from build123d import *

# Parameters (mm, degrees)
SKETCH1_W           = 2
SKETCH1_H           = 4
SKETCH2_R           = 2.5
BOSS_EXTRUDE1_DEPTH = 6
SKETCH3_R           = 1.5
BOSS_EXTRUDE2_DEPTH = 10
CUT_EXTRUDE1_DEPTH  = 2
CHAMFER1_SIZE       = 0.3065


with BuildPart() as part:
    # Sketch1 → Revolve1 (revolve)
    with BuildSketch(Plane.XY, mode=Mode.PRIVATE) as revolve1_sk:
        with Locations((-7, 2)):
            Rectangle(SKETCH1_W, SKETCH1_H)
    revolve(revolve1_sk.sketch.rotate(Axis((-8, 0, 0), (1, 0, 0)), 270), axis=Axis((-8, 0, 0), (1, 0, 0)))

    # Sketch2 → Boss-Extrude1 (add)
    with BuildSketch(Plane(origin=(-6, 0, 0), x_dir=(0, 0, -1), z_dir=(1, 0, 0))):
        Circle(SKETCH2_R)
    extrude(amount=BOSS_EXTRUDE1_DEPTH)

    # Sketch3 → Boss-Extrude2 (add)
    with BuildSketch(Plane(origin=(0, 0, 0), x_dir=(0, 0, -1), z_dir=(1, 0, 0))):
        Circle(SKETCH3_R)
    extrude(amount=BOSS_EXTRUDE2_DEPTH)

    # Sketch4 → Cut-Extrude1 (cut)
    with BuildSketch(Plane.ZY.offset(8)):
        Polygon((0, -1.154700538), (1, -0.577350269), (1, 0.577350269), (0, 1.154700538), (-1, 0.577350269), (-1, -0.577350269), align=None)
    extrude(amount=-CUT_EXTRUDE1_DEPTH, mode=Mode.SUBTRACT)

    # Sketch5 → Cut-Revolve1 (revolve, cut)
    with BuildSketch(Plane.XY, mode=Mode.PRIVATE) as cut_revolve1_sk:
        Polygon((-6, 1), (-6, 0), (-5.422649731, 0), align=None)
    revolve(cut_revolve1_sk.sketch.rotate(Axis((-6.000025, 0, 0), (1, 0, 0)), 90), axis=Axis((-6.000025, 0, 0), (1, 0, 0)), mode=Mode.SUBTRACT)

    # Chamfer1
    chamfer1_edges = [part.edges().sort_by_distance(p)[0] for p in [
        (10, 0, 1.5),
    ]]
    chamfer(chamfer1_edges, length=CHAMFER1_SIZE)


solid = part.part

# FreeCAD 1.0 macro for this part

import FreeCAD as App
import Part
import Sketcher
from FreeCAD import Vector
Q = App.Units.Quantity


def edges_at(feature, points):
    """Names of the edges that pass closest to the given points."""
    edges = feature.Shape.Edges
    near = lambda p: min(range(len(edges)), key=lambda i: edges[i].distToShape(Part.Vertex(*p))[0])
    return sorted({f"Edge{near(p) + 1}" for p in points})

doc = App.newDocument("Part")
params = doc.addObject("Spreadsheet::Sheet", "Params")
for row, (alias, value) in enumerate([
    ("sketch1_width", "2 mm"),
    ("sketch1_height", "4 mm"),
    ("revolution_angle", "360 deg"),
    ("sketch2_diameter", "5 mm"),
    ("pad1_length", "6 mm"),
    ("sketch3_diameter", "3 mm"),
    ("pad2_length", "10 mm"),
    ("pocket1_length", "2 mm"),
    ("sketch5_height", "1 mm"),
    ("groove_angle", "360 deg"),
    ("chamfer_size", "0.3065 mm"),
], start=1):
    params.set(f"A{row}", alias)
    params.set(f"B{row}", "=" + value)
    params.setAlias(f"B{row}", alias)

body = doc.addObject("PartDesign::Body", "Body")

# Sketch on XY plane
sketch1 = body.newObject("Sketcher::SketchObject", "Sketch")
sketch1.AttachmentSupport = (doc.getObject("XY_Plane"), [""])
sketch1.MapMode = "FlatFace"
sketch1.addGeometry(Part.LineSegment(Vector(-8, 4, 0), Vector(-8, 0, 0)), False)
sketch1.addGeometry(Part.LineSegment(Vector(-8, 0, 0), Vector(-6, 0, 0)), False)
sketch1.addGeometry(Part.LineSegment(Vector(-6, 0, 0), Vector(-6, 4, 0)), False)
sketch1.addGeometry(Part.LineSegment(Vector(-6, 4, 0), Vector(-8, 4, 0)), False)
sketch1.addConstraint(Sketcher.Constraint("Coincident", 0, 2, 1, 1))
sketch1.addConstraint(Sketcher.Constraint("Coincident", 1, 2, 2, 1))
sketch1.addConstraint(Sketcher.Constraint("Coincident", 2, 2, 3, 1))
sketch1.addConstraint(Sketcher.Constraint("Coincident", 3, 2, 0, 1))
sketch1.addConstraint(Sketcher.Constraint("Vertical", 0))
sketch1.addConstraint(Sketcher.Constraint("Horizontal", 1))
sketch1.addConstraint(Sketcher.Constraint("Vertical", 2))
sketch1.addConstraint(Sketcher.Constraint("Horizontal", 3))
sketch1.addConstraint(Sketcher.Constraint("PointOnObject", 0, 2, -1))
sketch1.addConstraint(Sketcher.Constraint("DistanceX", 1, 1, 1, 2, Q("2 mm")))
sketch1.addConstraint(Sketcher.Constraint("DistanceY", 0, 2, 0, 1, Q("4 mm")))
sketch1.addConstraint(Sketcher.Constraint("DistanceX", 0, 2, -1, 1, Q("8 mm")))
sketch1.setExpression("Constraints[9]", "Params.sketch1_width")
sketch1.setExpression("Constraints[10]", "Params.sketch1_height")
revolution = body.newObject("PartDesign::Revolution", "Revolution")
revolution.Profile = sketch1
revolution.ReferenceAxis = (sketch1, ["H_Axis"])
revolution.setExpression("Angle", "Params.revolution_angle")

# Sketch on YZ plane
sketch2 = body.newObject("Sketcher::SketchObject", "Sketch001")
sketch2.AttachmentSupport = (doc.getObject("YZ_Plane"), [""])
sketch2.MapMode = "FlatFace"
sketch2.AttachmentOffset = App.Placement(Vector(0, 0, -6), App.Rotation())
sketch2.addGeometry(Part.Circle(Vector(0, 0, 0), Vector(0, 0, 1), 2.5), False)
sketch2.addConstraint(Sketcher.Constraint("Coincident", 0, 3, -1, 1))
sketch2.addConstraint(Sketcher.Constraint("Diameter", 0, Q("5 mm")))
sketch2.setExpression("Constraints[1]", "Params.sketch2_diameter")
pad1 = body.newObject("PartDesign::Pad", "Pad")
pad1.Profile = sketch2
pad1.setExpression("Length", "Params.pad1_length")

# Sketch on YZ plane
sketch3 = body.newObject("Sketcher::SketchObject", "Sketch002")
sketch3.AttachmentSupport = (doc.getObject("YZ_Plane"), [""])
sketch3.MapMode = "FlatFace"
sketch3.addGeometry(Part.Circle(Vector(0, 0, 0), Vector(0, 0, 1), 1.5), False)
sketch3.addConstraint(Sketcher.Constraint("Coincident", 0, 3, -1, 1))
sketch3.addConstraint(Sketcher.Constraint("Diameter", 0, Q("3 mm")))
sketch3.setExpression("Constraints[1]", "Params.sketch3_diameter")
pad2 = body.newObject("PartDesign::Pad", "Pad001")
pad2.Profile = sketch3
pad2.setExpression("Length", "Params.pad2_length")

# Sketch on YZ plane
sketch4 = body.newObject("Sketcher::SketchObject", "Sketch003")
sketch4.AttachmentSupport = (doc.getObject("YZ_Plane"), [""])
sketch4.MapMode = "FlatFace"
sketch4.AttachmentOffset = App.Placement(Vector(0, 0, -8), App.Rotation())
sketch4.addGeometry(Part.LineSegment(Vector(-1.2, 0, 0), Vector(-0.6, 1, 0)), False)
sketch4.addGeometry(Part.LineSegment(Vector(-0.6, 1, 0), Vector(0.6, 1, 0)), False)
sketch4.addGeometry(Part.LineSegment(Vector(0.6, 1, 0), Vector(1.2, 0, 0)), False)
sketch4.addGeometry(Part.LineSegment(Vector(1.2, 0, 0), Vector(0.6, -1, 0)), False)
sketch4.addGeometry(Part.LineSegment(Vector(0.6, -1, 0), Vector(-0.6, -1, 0)), False)
sketch4.addGeometry(Part.LineSegment(Vector(-0.6, -1, 0), Vector(-1.2, 0, 0)), False)
sketch4.addConstraint(Sketcher.Constraint("Coincident", 0, 2, 1, 1))
sketch4.addConstraint(Sketcher.Constraint("Coincident", 1, 2, 2, 1))
sketch4.addConstraint(Sketcher.Constraint("Coincident", 2, 2, 3, 1))
sketch4.addConstraint(Sketcher.Constraint("Coincident", 3, 2, 4, 1))
sketch4.addConstraint(Sketcher.Constraint("Coincident", 4, 2, 5, 1))
sketch4.addConstraint(Sketcher.Constraint("Coincident", 5, 2, 0, 1))
sketch4.addConstraint(Sketcher.Constraint("Horizontal", 1))
sketch4.addConstraint(Sketcher.Constraint("Horizontal", 4))
sketch4.addConstraint(Sketcher.Constraint("Symmetric", 0, 2, 3, 2, -1, 1))
sketch4.addConstraint(Sketcher.Constraint("Symmetric", 2, 2, 5, 2, -1, 1))
sketch4.addConstraint(Sketcher.Constraint("PointOnObject", 2, 2, -1))
sketch4.addConstraint(Sketcher.Constraint("Parallel", 2, 5))
sketch4.addConstraint(Sketcher.Constraint("Vertical", 1, 2, 3, 2))
sketch4.addConstraint(Sketcher.Constraint("Angle", 0, Q("60 deg")))
sketch4.addConstraint(Sketcher.Constraint("DistanceY", -1, 1, 0, 2, Q("1 mm")))
sketch4.addConstraint(Sketcher.Constraint("DistanceX", 1, 1, 1, 2, Q("1.154701 mm")))
pocket1 = body.newObject("PartDesign::Pocket", "Pocket")
pocket1.Profile = sketch4
pocket1.setExpression("Length", "Params.pocket1_length")
pocket1.Reversed = True

# Sketch on XY plane
sketch5 = body.newObject("Sketcher::SketchObject", "Sketch004")
sketch5.AttachmentSupport = (doc.getObject("XY_Plane"), [""])
sketch5.MapMode = "FlatFace"
sketch5.addGeometry(Part.LineSegment(Vector(-6, 1, 0), Vector(-6, 0, 0)), False)
sketch5.addGeometry(Part.LineSegment(Vector(-6, 0, 0), Vector(-5.4, 0, 0)), False)
sketch5.addGeometry(Part.LineSegment(Vector(-5.4, 0, 0), Vector(-6, 1, 0)), False)
sketch5.addConstraint(Sketcher.Constraint("Coincident", 0, 2, 1, 1))
sketch5.addConstraint(Sketcher.Constraint("Coincident", 1, 2, 2, 1))
sketch5.addConstraint(Sketcher.Constraint("Coincident", 2, 2, 0, 1))
sketch5.addConstraint(Sketcher.Constraint("Vertical", 0))
sketch5.addConstraint(Sketcher.Constraint("Horizontal", 1))
sketch5.addConstraint(Sketcher.Constraint("PointOnObject", 0, 2, -1))
sketch5.addConstraint(Sketcher.Constraint("DistanceY", 0, 2, 0, 1, Q("1 mm")))
sketch5.addConstraint(Sketcher.Constraint("Angle", 2, Q("120 deg")))
sketch5.addConstraint(Sketcher.Constraint("DistanceX", 0, 2, -1, 1, Q("6 mm")))
sketch5.setExpression("Constraints[6]", "Params.sketch5_height")
groove = body.newObject("PartDesign::Groove", "Groove")
groove.Profile = sketch5
groove.ReferenceAxis = (sketch5, ["H_Axis"])
groove.setExpression("Angle", "Params.groove_angle")
doc.recompute()

chamfer = body.newObject("PartDesign::Chamfer", "Chamfer")
chamfer.Base = (groove, edges_at(groove, [(10, 0, 1.5)]))
chamfer.setExpression("Size", "Params.chamfer_size")

doc.recompute()
